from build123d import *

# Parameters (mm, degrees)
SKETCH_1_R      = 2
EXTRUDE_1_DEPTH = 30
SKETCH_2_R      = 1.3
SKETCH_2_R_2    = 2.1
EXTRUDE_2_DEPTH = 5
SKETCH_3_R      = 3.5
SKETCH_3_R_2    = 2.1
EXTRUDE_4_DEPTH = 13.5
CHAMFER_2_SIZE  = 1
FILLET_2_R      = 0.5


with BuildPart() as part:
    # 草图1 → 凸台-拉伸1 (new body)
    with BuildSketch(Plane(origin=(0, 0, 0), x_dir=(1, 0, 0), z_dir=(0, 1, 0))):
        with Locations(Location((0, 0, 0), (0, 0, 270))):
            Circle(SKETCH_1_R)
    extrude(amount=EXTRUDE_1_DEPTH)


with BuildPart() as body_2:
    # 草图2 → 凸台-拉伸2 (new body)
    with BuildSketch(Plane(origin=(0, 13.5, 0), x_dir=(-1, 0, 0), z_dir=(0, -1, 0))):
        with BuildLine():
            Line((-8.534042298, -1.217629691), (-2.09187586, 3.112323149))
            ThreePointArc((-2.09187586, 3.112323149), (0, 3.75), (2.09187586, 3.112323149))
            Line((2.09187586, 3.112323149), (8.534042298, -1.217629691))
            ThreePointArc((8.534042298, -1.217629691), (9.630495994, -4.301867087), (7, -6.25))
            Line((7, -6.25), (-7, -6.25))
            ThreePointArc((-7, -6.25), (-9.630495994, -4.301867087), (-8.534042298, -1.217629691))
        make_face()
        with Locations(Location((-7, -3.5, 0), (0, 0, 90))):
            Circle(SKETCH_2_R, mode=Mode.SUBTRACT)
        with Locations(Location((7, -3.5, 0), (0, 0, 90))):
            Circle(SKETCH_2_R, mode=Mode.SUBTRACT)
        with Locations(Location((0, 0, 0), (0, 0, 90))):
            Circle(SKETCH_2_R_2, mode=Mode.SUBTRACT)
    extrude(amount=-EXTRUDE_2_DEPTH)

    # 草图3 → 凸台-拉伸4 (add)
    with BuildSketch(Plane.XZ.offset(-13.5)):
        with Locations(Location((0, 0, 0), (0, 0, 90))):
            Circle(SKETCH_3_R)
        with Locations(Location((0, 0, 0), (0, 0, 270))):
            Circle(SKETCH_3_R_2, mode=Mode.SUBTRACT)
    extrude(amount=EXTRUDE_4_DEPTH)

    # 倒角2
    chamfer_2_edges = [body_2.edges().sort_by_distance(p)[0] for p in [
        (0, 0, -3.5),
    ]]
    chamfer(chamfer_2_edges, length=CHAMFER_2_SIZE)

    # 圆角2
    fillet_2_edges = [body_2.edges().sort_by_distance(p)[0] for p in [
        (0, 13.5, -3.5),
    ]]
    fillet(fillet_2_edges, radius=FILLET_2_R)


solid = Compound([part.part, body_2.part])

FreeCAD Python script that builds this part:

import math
import FreeCAD as App
import Part
import Sketcher

V = App.Vector
Q = App.Units.Quantity


def edges_at(feature, points):
    """Names of the edges that pass closest to the given points."""
    edges = feature.Shape.Edges
    near = lambda p: min(range(len(edges)), key=lambda i: edges[i].distToShape(Part.Vertex(*p))[0])
    return sorted({f"Edge{near(p) + 1}" for p in points})

doc = App.newDocument("Part")
body = doc.addObject("PartDesign::Body", "Body")

# Sketch on XZ plane
sketch1 = body.newObject("Sketcher::SketchObject", "Sketch")
sketch1.AttachmentSupport = (doc.getObject("XZ_Plane"), [""])
sketch1.MapMode = "FlatFace"
sketch1.addGeometry(Part.Circle(V(0, 0, 0), V(0, 0, 1), 2), False)
sketch1.addConstraint(Sketcher.Constraint("Coincident", 0, 3, -1, 1))
sketch1.addConstraint(Sketcher.Constraint("Diameter", 0, Q("4 mm")))
pad1 = body.newObject("PartDesign::Pad", "Pad")
pad1.Profile = sketch1
pad1.Length = 30
pad1.Reversed = True
body2 = doc.addObject("PartDesign::Body", "Body001")

# Sketch on XZ plane
sketch2 = body2.newObject("Sketcher::SketchObject", "Sketch001")
sketch2.AttachmentSupport = (doc.getObject("XZ_Plane001"), [""])
sketch2.MapMode = "FlatFace"
sketch2.AttachmentOffset = App.Placement(V(0, 0, -13.5), App.Rotation())
sketch2.addGeometry(Part.LineSegment(V(2.091876, -3.112323, 0), V(8.534042, 1.21763, 0)), False)
sketch2.addGeometry(Part.ArcOfCircle(Part.Circle(V(7, 3.5, 0), V(0, 0, 1), 2.75), math.radians(-56.093894), math.radians(90)), False)
sketch2.addGeometry(Part.LineSegment(V(7, 6.25, 0), V(-7, 6.25, 0)), False)
sketch2.addGeometry(Part.ArcOfCircle(Part.Circle(V(-7, 3.5, 0), V(0, 0, 1), 2.75), math.radians(90), math.radians(236.093894)), False)
sketch2.addGeometry(Part.LineSegment(V(-8.534042, 1.21763, 0), V(-2.091876, -3.112323, 0)), False)
sketch2.addGeometry(Part.ArcOfCircle(Part.Circle(V(0, 0, 0), V(0, 0, 1), 3.75), math.radians(-123.906106), math.radians(-56.093894)), False)
sketch2.addGeometry(Part.Circle(V(-7, 3.5, 0), V(0, 0, 1), 1.3), False)
sketch2.addGeometry(Part.Circle(V(7, 3.5, 0), V(0, 0, 1), 1.3), False)
sketch2.addGeometry(Part.Circle(V(0, 0, 0), V(0, 0, 1), 2.1), False)
sketch2.addConstraint(Sketcher.Constraint("Tangent", 0, 2, 1, 1))
sketch2.addConstraint(Sketcher.Constraint("Tangent", 1, 2, 2, 1))
sketch2.addConstraint(Sketcher.Constraint("Tangent", 2, 2, 3, 1))
sketch2.addConstraint(Sketcher.Constraint("Tangent", 3, 2, 4, 1))
sketch2.addConstraint(Sketcher.Constraint("Tangent", 4, 2, 5, 1))
sketch2.addConstraint(Sketcher.Constraint("Tangent", 5, 2, 0, 1))
sketch2.addConstraint(Sketcher.Constraint("Horizontal", 2))
sketch2.addConstraint(Sketcher.Constraint("Coincident", 5, 3, -1, 1))
sketch2.addConstraint(Sketcher.Constraint("Coincident", 8, 3, -1, 1))
sketch2.addConstraint(Sketcher.Constraint("Coincident", 6, 3, 3, 3))
sketch2.addConstraint(Sketcher.Constraint("Coincident", 7, 3, 1, 3))
sketch2.addConstraint(Sketcher.Constraint("Equal", 1, 3))
sketch2.addConstraint(Sketcher.Constraint("Equal", 6, 7))
sketch2.addConstraint(Sketcher.Constraint("Horizontal", 0, 2, 3, 2))
sketch2.addConstraint(Sketcher.Constraint("Diameter", 6, Q("2.6 mm")))
sketch2.addConstraint(Sketcher.Constraint("Diameter", 8, Q("4.2 mm")))
sketch2.addConstraint(Sketcher.Constraint("DistanceX", 2, 2, 2, 1, Q("14 mm")))
sketch2.addConstraint(Sketcher.Constraint("Radius", 1, Q("2.75 mm")))
sketch2.addConstraint(Sketcher.Constraint("Radius", 5, Q("3.75 mm")))
sketch2.addConstraint(Sketcher.Constraint("DistanceY", -1, 1, 1, 3, Q("3.5 mm")))
pad2 = body2.newObject("PartDesign::Pad", "Pad001")
pad2.Profile = sketch2
pad2.Length = 5
pad2.Reversed = True

# Sketch on XZ plane
sketch3 = body2.newObject("Sketcher::SketchObject", "Sketch002")
sketch3.AttachmentSupport = (doc.getObject("XZ_Plane001"), [""])
sketch3.MapMode = "FlatFace"
sketch3.AttachmentOffset = App.Placement(V(0, 0, -13.5), App.Rotation())
sketch3.addGeometry(Part.Circle(V(0, 0, 0), V(0, 0, 1), 3.5), False)
sketch3.addGeometry(Part.Circle(V(0, 0, 0), V(0, 0, 1), 2.1), False)
sketch3.addConstraint(Sketcher.Constraint("Coincident", 0, 3, -1, 1))
sketch3.addConstraint(Sketcher.Constraint("Coincident", 1, 3, -1, 1))
sketch3.addConstraint(Sketcher.Constraint("Diameter", 0, Q("7 mm")))
sketch3.addConstraint(Sketcher.Constraint("Diameter", 1, Q("4.2 mm")))
pad3 = body2.newObject("PartDesign::Pad", "Pad002")
pad3.Profile = sketch3
pad3.Length = 13.5
doc.recompute()

chamfer = body2.newObject("PartDesign::Chamfer", "Chamfer")
chamfer.Base = (pad3, edges_at(pad3, [(0, 0, -3.5)]))
chamfer.Size = 1
doc.recompute()

fillet = body2.newObject("PartDesign::Fillet", "Fillet")
fillet.Base = (chamfer, edges_at(chamfer, [(0, 13.5, -3.5)]))
fillet.Radius = 0.5

doc.recompute()
